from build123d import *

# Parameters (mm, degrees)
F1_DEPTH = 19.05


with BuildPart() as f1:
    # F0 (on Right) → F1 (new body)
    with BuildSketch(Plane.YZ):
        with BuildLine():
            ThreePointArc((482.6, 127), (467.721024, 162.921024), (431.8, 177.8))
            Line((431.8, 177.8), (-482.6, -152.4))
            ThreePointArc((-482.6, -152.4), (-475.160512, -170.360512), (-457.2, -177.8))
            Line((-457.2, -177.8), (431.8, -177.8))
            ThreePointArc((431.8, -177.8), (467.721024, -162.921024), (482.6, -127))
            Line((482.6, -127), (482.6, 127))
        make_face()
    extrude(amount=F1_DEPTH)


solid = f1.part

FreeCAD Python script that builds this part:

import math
import FreeCAD as App
import Part
import Sketcher

V = App.Vector
Q = App.Units.Quantity

doc = App.newDocument("Part")
body = doc.addObject("PartDesign::Body", "Body")

sketch1 = body.newObject("Sketcher::SketchObject", "Sketch")
sketch1.AttachmentSupport = (doc.getObject("YZ_Plane"), [""])
sketch1.MapMode = "FlatFace"
sketch1.addGeometry([
    Part.ArcOfCircle(Part.Circle(V(432, 127, 0), V(0, 0, 1), 51), math.radians(0), math.radians(90)),
    Part.LineSegment(V(432, 178, 0), V(-483, -152, 0)),
    Part.ArcOfCircle(Part.Circle(V(-457, -152, 0), V(0, 0, 1), 25), math.radians(-180), math.radians(-90)),
    Part.LineSegment(V(-457, -178, 0), V(432, -178, 0)),
    Part.ArcOfCircle(Part.Circle(V(432, -127, 0), V(0, 0, 1), 51), math.radians(-90), math.radians(0)),
    Part.LineSegment(V(483, -127, 0), V(483, 127, 0)),
], False)
sketch1.addConstraint([
    Sketcher.Constraint("Coincident", 0, 2, 1, 1),
    Sketcher.Constraint("Coincident", 1, 2, 2, 1),
    Sketcher.Constraint("Tangent", 2, 2, 3, 1),
    Sketcher.Constraint("Tangent", 3, 2, 4, 1),
    Sketcher.Constraint("Tangent", 4, 2, 5, 1),
    Sketcher.Constraint("Tangent", 5, 2, 0, 1),
    Sketcher.Constraint("Horizontal", 3),
    Sketcher.Constraint("Vertical", 5),
    Sketcher.Constraint("Equal", 0, 4),
    Sketcher.Constraint("Symmetric", 0, 2, 3, 2, -1),
    Sketcher.Constraint("Horizontal", 2, 3, 1, 2),
    Sketcher.Constraint("Radius", 0, Q("2.0000001 in")),
    Sketcher.Constraint("Radius", 2, Q("1 in")),
    Sketcher.Constraint("DistanceX", 3, 1, 3, 2, Q("35 in")),
    Sketcher.Constraint("DistanceY", 5, 1, 5, 2, Q("10 in")),
    Sketcher.Constraint("DistanceX", -1, 1, 0, 3, Q("16.9999999 in")),
])
pad1 = body.newObject("PartDesign::Pad", "Pad")
pad1.Profile = sketch1
pad1.Length = Q("0.75 in")

doc.recompute()
